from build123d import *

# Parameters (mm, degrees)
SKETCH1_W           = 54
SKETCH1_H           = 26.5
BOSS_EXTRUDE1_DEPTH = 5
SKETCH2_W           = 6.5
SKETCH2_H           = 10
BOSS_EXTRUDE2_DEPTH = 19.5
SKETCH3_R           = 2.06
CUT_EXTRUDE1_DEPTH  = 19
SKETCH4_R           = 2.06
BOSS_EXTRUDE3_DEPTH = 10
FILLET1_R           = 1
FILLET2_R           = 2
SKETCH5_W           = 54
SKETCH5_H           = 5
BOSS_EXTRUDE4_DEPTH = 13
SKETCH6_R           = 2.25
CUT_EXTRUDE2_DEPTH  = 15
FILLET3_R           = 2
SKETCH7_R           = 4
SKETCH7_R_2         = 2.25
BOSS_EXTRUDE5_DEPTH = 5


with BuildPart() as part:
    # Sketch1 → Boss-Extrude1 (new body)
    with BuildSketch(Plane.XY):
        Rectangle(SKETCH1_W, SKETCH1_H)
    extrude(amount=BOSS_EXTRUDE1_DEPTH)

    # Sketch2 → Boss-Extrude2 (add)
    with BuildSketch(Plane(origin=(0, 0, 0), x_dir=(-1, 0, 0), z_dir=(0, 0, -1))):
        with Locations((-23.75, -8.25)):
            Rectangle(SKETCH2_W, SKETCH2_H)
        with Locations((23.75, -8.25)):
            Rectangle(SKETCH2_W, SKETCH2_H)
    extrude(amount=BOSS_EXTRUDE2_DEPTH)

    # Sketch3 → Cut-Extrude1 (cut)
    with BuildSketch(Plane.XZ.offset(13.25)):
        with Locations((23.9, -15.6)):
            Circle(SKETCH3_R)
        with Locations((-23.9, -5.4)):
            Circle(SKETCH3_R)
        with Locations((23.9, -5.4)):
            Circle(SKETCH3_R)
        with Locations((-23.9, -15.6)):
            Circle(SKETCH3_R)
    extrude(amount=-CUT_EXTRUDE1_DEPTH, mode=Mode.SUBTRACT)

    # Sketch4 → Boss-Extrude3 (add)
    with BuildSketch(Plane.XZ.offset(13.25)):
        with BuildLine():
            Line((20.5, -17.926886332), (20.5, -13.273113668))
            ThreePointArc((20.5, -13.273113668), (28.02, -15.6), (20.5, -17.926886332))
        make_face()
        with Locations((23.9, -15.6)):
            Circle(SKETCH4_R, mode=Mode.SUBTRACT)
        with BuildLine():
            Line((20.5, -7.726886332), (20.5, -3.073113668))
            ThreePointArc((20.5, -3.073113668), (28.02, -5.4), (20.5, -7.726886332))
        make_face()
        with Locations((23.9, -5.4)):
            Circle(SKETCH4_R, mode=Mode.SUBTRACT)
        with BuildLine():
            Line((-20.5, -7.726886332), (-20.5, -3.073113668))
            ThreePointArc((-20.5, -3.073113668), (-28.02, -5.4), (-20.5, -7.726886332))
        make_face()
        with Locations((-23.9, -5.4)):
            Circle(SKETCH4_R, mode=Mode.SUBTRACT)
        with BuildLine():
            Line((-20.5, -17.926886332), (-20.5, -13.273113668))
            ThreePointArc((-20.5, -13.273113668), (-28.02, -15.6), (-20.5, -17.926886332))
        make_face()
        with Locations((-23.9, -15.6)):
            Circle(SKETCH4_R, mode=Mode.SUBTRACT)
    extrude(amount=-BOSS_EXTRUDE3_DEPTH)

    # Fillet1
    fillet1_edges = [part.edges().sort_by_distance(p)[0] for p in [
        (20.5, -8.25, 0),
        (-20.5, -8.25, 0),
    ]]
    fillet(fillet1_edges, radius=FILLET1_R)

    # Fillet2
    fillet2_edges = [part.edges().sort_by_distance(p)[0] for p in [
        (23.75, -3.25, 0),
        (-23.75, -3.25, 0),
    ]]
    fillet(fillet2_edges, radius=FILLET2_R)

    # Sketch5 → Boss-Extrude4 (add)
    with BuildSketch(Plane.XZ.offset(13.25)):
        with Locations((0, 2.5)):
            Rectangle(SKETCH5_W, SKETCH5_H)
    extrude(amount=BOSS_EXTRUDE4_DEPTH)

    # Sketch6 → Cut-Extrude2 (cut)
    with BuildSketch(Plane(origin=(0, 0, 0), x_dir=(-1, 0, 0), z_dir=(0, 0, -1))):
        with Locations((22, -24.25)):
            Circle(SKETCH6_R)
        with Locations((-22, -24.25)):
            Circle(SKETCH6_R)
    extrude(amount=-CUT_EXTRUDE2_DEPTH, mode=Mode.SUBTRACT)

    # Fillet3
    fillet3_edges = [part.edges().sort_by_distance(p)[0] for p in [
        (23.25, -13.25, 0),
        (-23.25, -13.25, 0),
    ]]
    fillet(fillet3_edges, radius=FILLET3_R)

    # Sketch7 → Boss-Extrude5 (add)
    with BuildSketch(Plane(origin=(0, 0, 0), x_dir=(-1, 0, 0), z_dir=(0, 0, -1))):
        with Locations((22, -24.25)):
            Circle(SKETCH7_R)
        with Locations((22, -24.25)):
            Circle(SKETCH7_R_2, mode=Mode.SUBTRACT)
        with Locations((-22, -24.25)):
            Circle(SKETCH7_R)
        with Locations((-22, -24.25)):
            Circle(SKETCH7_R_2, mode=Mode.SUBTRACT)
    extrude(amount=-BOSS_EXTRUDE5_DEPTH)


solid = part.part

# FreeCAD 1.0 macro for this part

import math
import FreeCAD as App
import Part
import Sketcher
Q = App.Units.Quantity


def edges_at(feature, points):
    """Names of the edges that pass closest to the given points."""
    edges = feature.Shape.Edges
    near = lambda p: min(range(len(edges)), key=lambda i: edges[i].distToShape(Part.Vertex(*p))[0])
    return sorted({f"Edge{near(p) + 1}" for p in points})

doc = App.newDocument("Part")
params = doc.addObject("Spreadsheet::Sheet", "Params")
for row, (alias, value) in enumerate([
    ("sketch1_width", "54 mm"),
    ("sketch1_height", "26.5 mm"),
    ("pad1_length", "5 mm"),
    ("sketch2_height", "10 mm"),
    ("sketch2_width", "6.5 mm"),
    ("pad2_length", "19.5 mm"),
    ("sketch3_diameter", "4.12 mm"),
    ("pocket1_length", "19 mm"),
    ("sketch4_diameter", "4.12 mm"),
    ("sketch4_radius", "4.12 mm"),
    ("pad3_length", "10 mm"),
    ("fillet_radius", "1 mm"),
    ("fillet2_radius", "2 mm"),
    ("sketch5_width", "54 mm"),
    ("sketch5_height", "5 mm"),
    ("pad4_length", "13 mm"),
    ("sketch6_diameter", "4.5 mm"),
    ("pocket2_length", "15 mm"),
    ("fillet3_radius", "2 mm"),
    ("sketch7_diameter", "8 mm"),
    ("sketch7_diameter2", "4.5 mm"),
    ("pad5_length", "5 mm"),
], start=1):
    params.set(f"A{row}", alias)
    params.set(f"B{row}", "=" + value)
    params.setAlias(f"B{row}", alias)

body = doc.addObject("PartDesign::Body", "Body")

# Sketch on XY plane
sketch1 = body.newObject("Sketcher::SketchObject", "Sketch")
sketch1.AttachmentSupport = (doc.getObject("XY_Plane"), [""])
sketch1.MapMode = "FlatFace"
sketch1.addGeometry([
    Part.LineSegment(App.Vector(-27, 13.25, 0), App.Vector(-27, -13.25, 0)),
    Part.LineSegment(App.Vector(-27, -13.25, 0), App.Vector(27, -13.25, 0)),
    Part.LineSegment(App.Vector(27, -13.25, 0), App.Vector(27, 13.25, 0)),
    Part.LineSegment(App.Vector(27, 13.25, 0), App.Vector(-27, 13.25, 0)),
], False)
sketch1.addConstraint([
    Sketcher.Constraint("Coincident", 0, 2, 1, 1),
    Sketcher.Constraint("Coincident", 1, 2, 2, 1),
    Sketcher.Constraint("Coincident", 2, 2, 3, 1),
    Sketcher.Constraint("Coincident", 3, 2, 0, 1),
    Sketcher.Constraint("Vertical", 0),
    Sketcher.Constraint("Horizontal", 1),
    Sketcher.Constraint("Vertical", 2),
    Sketcher.Constraint("Horizontal", 3),
    Sketcher.Constraint("Symmetric", 0, 2, 2, 2, -1, 1),
    Sketcher.Constraint("DistanceX", 1, 1, 1, 2, Q("54 mm")),
    Sketcher.Constraint("DistanceY", 0, 2, 0, 1, Q("26.5 mm")),
])
sketch1.setExpression("Constraints[9]", "Params.sketch1_width")
sketch1.setExpression("Constraints[10]", "Params.sketch1_height")
pad1 = body.newObject("PartDesign::Pad", "Pad")
pad1.Profile = sketch1
pad1.setExpression("Length", "Params.pad1_length")

# Sketch on XY plane
sketch2 = body.newObject("Sketcher::SketchObject", "Sketch001")
sketch2.AttachmentSupport = (doc.getObject("XY_Plane"), [""])
sketch2.MapMode = "FlatFace"
sketch2.addGeometry([
    Part.LineSegment(App.Vector(27, -3.25, 0), App.Vector(27, -13.25, 0)),  # 0
    Part.LineSegment(App.Vector(27, -13.25, 0), App.Vector(20.5, -13.25, 0)),  # 1
    Part.LineSegment(App.Vector(20.5, -13.25, 0), App.Vector(20.5, -3.25, 0)),  # 2
    Part.LineSegment(App.Vector(20.5, -3.25, 0), App.Vector(27, -3.25, 0)),  # 3
    Part.LineSegment(App.Vector(-20.5, -3.25, 0), App.Vector(-20.5, -13.25, 0)),  # 4
    Part.LineSegment(App.Vector(-20.5, -13.25, 0), App.Vector(-27, -13.25, 0)),  # 5
    Part.LineSegment(App.Vector(-27, -13.25, 0), App.Vector(-27, -3.25, 0)),  # 6
    Part.LineSegment(App.Vector(-27, -3.25, 0), App.Vector(-20.5, -3.25, 0)),  # 7
], False)
sketch2.addConstraint([
    Sketcher.Constraint("Coincident", 0, 2, 1, 1),
    Sketcher.Constraint("Coincident", 1, 2, 2, 1),
    Sketcher.Constraint("Coincident", 2, 2, 3, 1),
    Sketcher.Constraint("Coincident", 3, 2, 0, 1),
    Sketcher.Constraint("Coincident", 4, 2, 5, 1),
    Sketcher.Constraint("Coincident", 5, 2, 6, 1),
    Sketcher.Constraint("Coincident", 6, 2, 7, 1),
    Sketcher.Constraint("Coincident", 7, 2, 4, 1),
    Sketcher.Constraint("Vertical", 0),
    Sketcher.Constraint("Horizontal", 1),
    Sketcher.Constraint("Vertical", 2),
    Sketcher.Constraint("Horizontal", 3),
    Sketcher.Constraint("Vertical", 4),
    Sketcher.Constraint("Horizontal", 5),
    Sketcher.Constraint("Vertical", 6),
    Sketcher.Constraint("Horizontal", 7),
    Sketcher.Constraint("Symmetric", 1, 2, 4, 2, -2),
    Sketcher.Constraint("Symmetric", 3, 2, 6, 2, -2),
    Sketcher.Constraint("DistanceY", 0, 2, 0, 1, Q("10 mm")),
    Sketcher.Constraint("DistanceX", 1, 2, 1, 1, Q("6.5 mm")),
    Sketcher.Constraint("DistanceX", -1, 1, 0, 2, Q("27 mm")),
    Sketcher.Constraint("DistanceY", 0, 2, -1, 1, Q("13.25 mm")),
])
sketch2.setExpression("Constraints[18]", "Params.sketch2_height")
sketch2.setExpression("Constraints[19]", "Params.sketch2_width")
pad2 = body.newObject("PartDesign::Pad", "Pad001")
pad2.Profile = sketch2
pad2.setExpression("Length", "Params.pad2_length")
pad2.Reversed = True

# Sketch on XZ plane
sketch3 = body.newObject("Sketcher::SketchObject", "Sketch002")
sketch3.AttachmentSupport = (doc.getObject("XZ_Plane"), [""])
sketch3.MapMode = "FlatFace"
sketch3.AttachmentOffset = App.Placement(App.Vector(0, 0, 13.25), App.Rotation())
sketch3.addGeometry([
    Part.Circle(App.Vector(23.9, -15.6, 0), App.Vector(0, 0, 1), 2.06),
    Part.Circle(App.Vector(-23.9, -5.4, 0), App.Vector(0, 0, 1), 2.06),
    Part.Circle(App.Vector(23.9, -5.4, 0), App.Vector(0, 0, 1), 2.06),
    Part.Circle(App.Vector(-23.9, -15.6, 0), App.Vector(0, 0, 1), 2.06),
], False)
sketch3.addConstraint([
    Sketcher.Constraint("Equal", 0, 1),
    Sketcher.Constraint("Equal", 1, 2),
    Sketcher.Constraint("Equal", 2, 3),
    Sketcher.Constraint("Symmetric", 1, 3, 2, 3, -2),
    Sketcher.Constraint("Symmetric", 0, 3, 3, 3, -2),
    Sketcher.Constraint("Vertical", 0, 3, 2, 3),
    Sketcher.Constraint("Diameter", 0, Q("4.12 mm")),
    Sketcher.Constraint("DistanceX", -1, 1, 0, 3, Q("23.9 mm")),
    Sketcher.Constraint("DistanceY", 0, 3, -1, 1, Q("15.6 mm")),
    Sketcher.Constraint("DistanceY", 1, 3, -1, 1, Q("5.4 mm")),
])
sketch3.setExpression("Constraints[6]", "Params.sketch3_diameter")
pocket1 = body.newObject("PartDesign::Pocket", "Pocket")
pocket1.Profile = sketch3
pocket1.setExpression("Length", "Params.pocket1_length")

# Sketch on XZ plane
sketch4 = body.newObject("Sketcher::SketchObject", "Sketch003")
sketch4.AttachmentSupport = (doc.getObject("XZ_Plane"), [""])
sketch4.MapMode = "FlatFace"
sketch4.AttachmentOffset = App.Placement(App.Vector(0, 0, 13.25), App.Rotation())
sketch4.addGeometry([
    Part.LineSegment(App.Vector(20.5, -13.273114, 0), App.Vector(20.5, -17.926886, 0)),  # 0
    Part.ArcOfCircle(Part.Circle(App.Vector(23.9, -15.6, 0), App.Vector(0, 0, 1), 4.12), math.radians(-145.613107), math.radians(145.613107)),  # 1
    Part.Circle(App.Vector(23.9, -15.6, 0), App.Vector(0, 0, 1), 2.06),  # 2
    Part.LineSegment(App.Vector(20.5, -3.073114, 0), App.Vector(20.5, -7.726886, 0)),  # 3
    Part.ArcOfCircle(Part.Circle(App.Vector(23.9, -5.4, 0), App.Vector(0, 0, 1), 4.12), math.radians(-145.613107), math.radians(145.613107)),  # 4
    Part.Circle(App.Vector(23.9, -5.4, 0), App.Vector(0, 0, 1), 2.06),  # 5
    Part.LineSegment(App.Vector(-20.5, -7.726886, 0), App.Vector(-20.5, -3.073114, 0)),  # 6
    Part.ArcOfCircle(Part.Circle(App.Vector(-23.9, -5.4, 0), App.Vector(0, 0, 1), 4.12), math.radians(34.386893), math.radians(325.613107)),  # 7
    Part.Circle(App.Vector(-23.9, -5.4, 0), App.Vector(0, 0, 1), 2.06),  # 8
    Part.LineSegment(App.Vector(-20.5, -17.926886, 0), App.Vector(-20.5, -13.273114, 0)),  # 9
    Part.ArcOfCircle(Part.Circle(App.Vector(-23.9, -15.6, 0), App.Vector(0, 0, 1), 4.12), math.radians(34.386893), math.radians(325.613107)),  # 10
    Part.Circle(App.Vector(-23.9, -15.6, 0), App.Vector(0, 0, 1), 2.06),  # 11
], False)
sketch4.addConstraint([
    Sketcher.Constraint("Coincident", 0, 1, 1, 2),
    Sketcher.Constraint("Coincident", 1, 1, 0, 2),
    Sketcher.Constraint("Coincident", 3, 1, 4, 2),
    Sketcher.Constraint("Coincident", 4, 1, 3, 2),
    Sketcher.Constraint("Coincident", 6, 1, 7, 2),
    Sketcher.Constraint("Coincident", 7, 1, 6, 2),
    Sketcher.Constraint("Coincident", 9, 1, 10, 2),
    Sketcher.Constraint("Coincident", 10, 1, 9, 2),
    Sketcher.Constraint("Vertical", 0),
    Sketcher.Constraint("Vertical", 3),
    Sketcher.Constraint("Vertical", 6),
    Sketcher.Constraint("Vertical", 9),
    Sketcher.Constraint("Coincident", 2, 3, 1, 3),
    Sketcher.Constraint("Coincident", 5, 3, 4, 3),
    Sketcher.Constraint("Coincident", 8, 3, 7, 3),
    Sketcher.Constraint("Coincident", 11, 3, 10, 3),
    Sketcher.Constraint("Equal", 1, 4),
    Sketcher.Constraint("Equal", 2, 5),
    Sketcher.Constraint("Equal", 4, 7),
    Sketcher.Constraint("Equal", 5, 8),
    Sketcher.Constraint("Equal", 7, 10),
    Sketcher.Constraint("Equal", 8, 11),
    Sketcher.Constraint("Symmetric", 4, 3, 7, 3, -2),
    Sketcher.Constraint("Symmetric", 1, 3, 10, 3, -2),
    Sketcher.Constraint("Horizontal", 4, 1, 6, 1),
    Sketcher.Constraint("Horizontal", 1, 1, 9, 1),
    Sketcher.Constraint("Vertical", 2, 3, 4, 3),
    Sketcher.Constraint("Vertical", 1, 1, 3, 1),
    Sketcher.Constraint("Diameter", 2, Q("4.12 mm")),
    Sketcher.Constraint("Radius", 1, Q("4.12 mm")),
    Sketcher.Constraint("DistanceX", 6, 1, 4, 1, Q("41 mm")),
    Sketcher.Constraint("DistanceX", -1, 1, 1, 3, Q("23.9 mm")),
    Sketcher.Constraint("DistanceY", 1, 3, -1, 1, Q("15.6 mm")),
    Sketcher.Constraint("DistanceY", 4, 3, -1, 1, Q("5.4 mm")),
])
sketch4.setExpression("Constraints[28]", "Params.sketch4_diameter")
sketch4.setExpression("Constraints[29]", "Params.sketch4_radius")
pad3 = body.newObject("PartDesign::Pad", "Pad002")
pad3.Profile = sketch4
pad3.setExpression("Length", "Params.pad3_length")
pad3.Reversed = True
doc.recompute()

fillet = body.newObject("PartDesign::Fillet", "Fillet")
fillet.Base = (pad3, edges_at(pad3, [(20.5, -8.25, 0), (-20.5, -8.25, 0)]))
fillet.setExpression("Radius", "Params.fillet_radius")
doc.recompute()

fillet2 = body.newObject("PartDesign::Fillet", "Fillet001")
fillet2.Base = (fillet, edges_at(fillet, [(23.25, -3.25, 0), (-23.25, -3.25, 0)]))
fillet2.setExpression("Radius", "Params.fillet2_radius")

# Sketch on XZ plane
sketch5 = body.newObject("Sketcher::SketchObject", "Sketch004")
sketch5.AttachmentSupport = (doc.getObject("XZ_Plane"), [""])
sketch5.MapMode = "FlatFace"
sketch5.AttachmentOffset = App.Placement(App.Vector(0, 0, 13.25), App.Rotation())
sketch5.addGeometry([
    Part.LineSegment(App.Vector(-27, 5, 0), App.Vector(-27, 0, 0)),
    Part.LineSegment(App.Vector(-27, 0, 0), App.Vector(27, 0, 0)),
    Part.LineSegment(App.Vector(27, 0, 0), App.Vector(27, 5, 0)),
    Part.LineSegment(App.Vector(27, 5, 0), App.Vector(-27, 5, 0)),
], False)
sketch5.addConstraint([
    Sketcher.Constraint("Coincident", 0, 2, 1, 1),
    Sketcher.Constraint("Coincident", 1, 2, 2, 1),
    Sketcher.Constraint("Coincident", 2, 2, 3, 1),
    Sketcher.Constraint("Coincident", 3, 2, 0, 1),
    Sketcher.Constraint("Vertical", 0),
    Sketcher.Constraint("Horizontal", 1),
    Sketcher.Constraint("Vertical", 2),
    Sketcher.Constraint("Horizontal", 3),
    Sketcher.Constraint("Symmetric", 0, 2, 1, 2, -1, 1),
    Sketcher.Constraint("DistanceX", 1, 1, 1, 2, Q("54 mm")),
    Sketcher.Constraint("DistanceY", 0, 2, 0, 1, Q("5 mm")),
])
sketch5.setExpression("Constraints[9]", "Params.sketch5_width")
sketch5.setExpression("Constraints[10]", "Params.sketch5_height")
pad4 = body.newObject("PartDesign::Pad", "Pad003")
pad4.Profile = sketch5
pad4.setExpression("Length", "Params.pad4_length")

# Sketch on XY plane
sketch6 = body.newObject("Sketcher::SketchObject", "Sketch005")
sketch6.AttachmentSupport = (doc.getObject("XY_Plane"), [""])
sketch6.MapMode = "FlatFace"
sketch6.addGeometry([
    Part.Circle(App.Vector(-22, -24.25, 0), App.Vector(0, 0, 1), 2.25),
    Part.Circle(App.Vector(22, -24.25, 0), App.Vector(0, 0, 1), 2.25),
], False)
sketch6.addConstraint([
    Sketcher.Constraint("Equal", 0, 1),
    Sketcher.Constraint("Symmetric", 0, 3, 1, 3, -2),
    Sketcher.Constraint("Diameter", 0, Q("4.5 mm")),
    Sketcher.Constraint("DistanceX", 0, 3, -1, 1, Q("22 mm")),
    Sketcher.Constraint("DistanceY", 0, 3, -1, 1, Q("24.25 mm")),
])
sketch6.setExpression("Constraints[2]", "Params.sketch6_diameter")
pocket2 = body.newObject("PartDesign::Pocket", "Pocket001")
pocket2.Profile = sketch6
pocket2.setExpression("Length", "Params.pocket2_length")
pocket2.Reversed = True
doc.recompute()

fillet3 = body.newObject("PartDesign::Fillet", "Fillet002")
fillet3.Base = (pocket2, edges_at(pocket2, [(23.25, -13.25, 0), (-23.25, -13.25, 0)]))
fillet3.setExpression("Radius", "Params.fillet3_radius")

# Sketch on XY plane
sketch7 = body.newObject("Sketcher::SketchObject", "Sketch006")
sketch7.AttachmentSupport = (doc.getObject("XY_Plane"), [""])
sketch7.MapMode = "FlatFace"
sketch7.addGeometry([
    Part.Circle(App.Vector(-22, -24.25, 0), App.Vector(0, 0, 1), 4),
    Part.Circle(App.Vector(-22, -24.25, 0), App.Vector(0, 0, 1), 2.25),
    Part.Circle(App.Vector(22, -24.25, 0), App.Vector(0, 0, 1), 4),
    Part.Circle(App.Vector(22, -24.25, 0), App.Vector(0, 0, 1), 2.25),
], False)
sketch7.addConstraint([
    Sketcher.Constraint("Coincident", 1, 3, 0, 3),
    Sketcher.Constraint("Coincident", 3, 3, 2, 3),
    Sketcher.Constraint("Equal", 0, 2),
    Sketcher.Constraint("Equal", 1, 3),
    Sketcher.Constraint("Symmetric", 0, 3, 2, 3, -2),
    Sketcher.Constraint("Diameter", 0, Q("8 mm")),
    Sketcher.Constraint("Diameter", 1, Q("4.5 mm")),
    Sketcher.Constraint("DistanceX", 0, 3, -1, 1, Q("22 mm")),
    Sketcher.Constraint("DistanceY", 0, 3, -1, 1, Q("24.25 mm")),
])
sketch7.setExpression("Constraints[5]", "Params.sketch7_diameter")
sketch7.setExpression("Constraints[6]", "Params.sketch7_diameter2")
pad5 = body.newObject("PartDesign::Pad", "Pad004")
pad5.Profile = sketch7
pad5.setExpression("Length", "Params.pad5_length")

doc.recompute()
